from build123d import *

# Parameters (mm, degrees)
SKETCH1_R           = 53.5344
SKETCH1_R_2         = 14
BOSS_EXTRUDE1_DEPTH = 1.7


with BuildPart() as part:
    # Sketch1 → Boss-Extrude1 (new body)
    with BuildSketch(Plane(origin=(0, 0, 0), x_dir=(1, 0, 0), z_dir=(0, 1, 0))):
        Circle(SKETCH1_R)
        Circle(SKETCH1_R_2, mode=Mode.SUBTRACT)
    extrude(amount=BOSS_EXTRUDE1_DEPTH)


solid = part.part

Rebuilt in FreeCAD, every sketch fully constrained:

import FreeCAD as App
import Part
import Sketcher
from FreeCAD import Vector

doc = App.newDocument("Part")
body = doc.addObject("PartDesign::Body", "Body")

# Sketch on XZ plane
sketch1 = doc.addObject("Sketcher::SketchObject", "Sketch")
body.addObject(sketch1)
sketch1.AttachmentSupport = (doc.XZ_Plane, [""])
sketch1.MapMode = "FlatFace"
sketch1.addGeometry([
    Part.Circle(Vector(0, 0, 0), Vector(0, 0, 1), 54),
    Part.Circle(Vector(0, 0, 0), Vector(0, 0, 1), 14),
], False)
sketch1.addConstraint([
    Sketcher.Constraint("Coincident", 0, 3, -1, 1),
    Sketcher.Constraint("Coincident", 1, 3, -1, 1),
    Sketcher.Constraint("Diameter", 1, 28.0),
    Sketcher.Constraint("Diameter", 0, 107.0688),
])
pad1 = doc.addObject("PartDesign::Pad", "Pad")
body.addObject(pad1)
pad1.Profile = sketch1
pad1.Length = 1.7
pad1.Reversed = True

doc.recompute()
